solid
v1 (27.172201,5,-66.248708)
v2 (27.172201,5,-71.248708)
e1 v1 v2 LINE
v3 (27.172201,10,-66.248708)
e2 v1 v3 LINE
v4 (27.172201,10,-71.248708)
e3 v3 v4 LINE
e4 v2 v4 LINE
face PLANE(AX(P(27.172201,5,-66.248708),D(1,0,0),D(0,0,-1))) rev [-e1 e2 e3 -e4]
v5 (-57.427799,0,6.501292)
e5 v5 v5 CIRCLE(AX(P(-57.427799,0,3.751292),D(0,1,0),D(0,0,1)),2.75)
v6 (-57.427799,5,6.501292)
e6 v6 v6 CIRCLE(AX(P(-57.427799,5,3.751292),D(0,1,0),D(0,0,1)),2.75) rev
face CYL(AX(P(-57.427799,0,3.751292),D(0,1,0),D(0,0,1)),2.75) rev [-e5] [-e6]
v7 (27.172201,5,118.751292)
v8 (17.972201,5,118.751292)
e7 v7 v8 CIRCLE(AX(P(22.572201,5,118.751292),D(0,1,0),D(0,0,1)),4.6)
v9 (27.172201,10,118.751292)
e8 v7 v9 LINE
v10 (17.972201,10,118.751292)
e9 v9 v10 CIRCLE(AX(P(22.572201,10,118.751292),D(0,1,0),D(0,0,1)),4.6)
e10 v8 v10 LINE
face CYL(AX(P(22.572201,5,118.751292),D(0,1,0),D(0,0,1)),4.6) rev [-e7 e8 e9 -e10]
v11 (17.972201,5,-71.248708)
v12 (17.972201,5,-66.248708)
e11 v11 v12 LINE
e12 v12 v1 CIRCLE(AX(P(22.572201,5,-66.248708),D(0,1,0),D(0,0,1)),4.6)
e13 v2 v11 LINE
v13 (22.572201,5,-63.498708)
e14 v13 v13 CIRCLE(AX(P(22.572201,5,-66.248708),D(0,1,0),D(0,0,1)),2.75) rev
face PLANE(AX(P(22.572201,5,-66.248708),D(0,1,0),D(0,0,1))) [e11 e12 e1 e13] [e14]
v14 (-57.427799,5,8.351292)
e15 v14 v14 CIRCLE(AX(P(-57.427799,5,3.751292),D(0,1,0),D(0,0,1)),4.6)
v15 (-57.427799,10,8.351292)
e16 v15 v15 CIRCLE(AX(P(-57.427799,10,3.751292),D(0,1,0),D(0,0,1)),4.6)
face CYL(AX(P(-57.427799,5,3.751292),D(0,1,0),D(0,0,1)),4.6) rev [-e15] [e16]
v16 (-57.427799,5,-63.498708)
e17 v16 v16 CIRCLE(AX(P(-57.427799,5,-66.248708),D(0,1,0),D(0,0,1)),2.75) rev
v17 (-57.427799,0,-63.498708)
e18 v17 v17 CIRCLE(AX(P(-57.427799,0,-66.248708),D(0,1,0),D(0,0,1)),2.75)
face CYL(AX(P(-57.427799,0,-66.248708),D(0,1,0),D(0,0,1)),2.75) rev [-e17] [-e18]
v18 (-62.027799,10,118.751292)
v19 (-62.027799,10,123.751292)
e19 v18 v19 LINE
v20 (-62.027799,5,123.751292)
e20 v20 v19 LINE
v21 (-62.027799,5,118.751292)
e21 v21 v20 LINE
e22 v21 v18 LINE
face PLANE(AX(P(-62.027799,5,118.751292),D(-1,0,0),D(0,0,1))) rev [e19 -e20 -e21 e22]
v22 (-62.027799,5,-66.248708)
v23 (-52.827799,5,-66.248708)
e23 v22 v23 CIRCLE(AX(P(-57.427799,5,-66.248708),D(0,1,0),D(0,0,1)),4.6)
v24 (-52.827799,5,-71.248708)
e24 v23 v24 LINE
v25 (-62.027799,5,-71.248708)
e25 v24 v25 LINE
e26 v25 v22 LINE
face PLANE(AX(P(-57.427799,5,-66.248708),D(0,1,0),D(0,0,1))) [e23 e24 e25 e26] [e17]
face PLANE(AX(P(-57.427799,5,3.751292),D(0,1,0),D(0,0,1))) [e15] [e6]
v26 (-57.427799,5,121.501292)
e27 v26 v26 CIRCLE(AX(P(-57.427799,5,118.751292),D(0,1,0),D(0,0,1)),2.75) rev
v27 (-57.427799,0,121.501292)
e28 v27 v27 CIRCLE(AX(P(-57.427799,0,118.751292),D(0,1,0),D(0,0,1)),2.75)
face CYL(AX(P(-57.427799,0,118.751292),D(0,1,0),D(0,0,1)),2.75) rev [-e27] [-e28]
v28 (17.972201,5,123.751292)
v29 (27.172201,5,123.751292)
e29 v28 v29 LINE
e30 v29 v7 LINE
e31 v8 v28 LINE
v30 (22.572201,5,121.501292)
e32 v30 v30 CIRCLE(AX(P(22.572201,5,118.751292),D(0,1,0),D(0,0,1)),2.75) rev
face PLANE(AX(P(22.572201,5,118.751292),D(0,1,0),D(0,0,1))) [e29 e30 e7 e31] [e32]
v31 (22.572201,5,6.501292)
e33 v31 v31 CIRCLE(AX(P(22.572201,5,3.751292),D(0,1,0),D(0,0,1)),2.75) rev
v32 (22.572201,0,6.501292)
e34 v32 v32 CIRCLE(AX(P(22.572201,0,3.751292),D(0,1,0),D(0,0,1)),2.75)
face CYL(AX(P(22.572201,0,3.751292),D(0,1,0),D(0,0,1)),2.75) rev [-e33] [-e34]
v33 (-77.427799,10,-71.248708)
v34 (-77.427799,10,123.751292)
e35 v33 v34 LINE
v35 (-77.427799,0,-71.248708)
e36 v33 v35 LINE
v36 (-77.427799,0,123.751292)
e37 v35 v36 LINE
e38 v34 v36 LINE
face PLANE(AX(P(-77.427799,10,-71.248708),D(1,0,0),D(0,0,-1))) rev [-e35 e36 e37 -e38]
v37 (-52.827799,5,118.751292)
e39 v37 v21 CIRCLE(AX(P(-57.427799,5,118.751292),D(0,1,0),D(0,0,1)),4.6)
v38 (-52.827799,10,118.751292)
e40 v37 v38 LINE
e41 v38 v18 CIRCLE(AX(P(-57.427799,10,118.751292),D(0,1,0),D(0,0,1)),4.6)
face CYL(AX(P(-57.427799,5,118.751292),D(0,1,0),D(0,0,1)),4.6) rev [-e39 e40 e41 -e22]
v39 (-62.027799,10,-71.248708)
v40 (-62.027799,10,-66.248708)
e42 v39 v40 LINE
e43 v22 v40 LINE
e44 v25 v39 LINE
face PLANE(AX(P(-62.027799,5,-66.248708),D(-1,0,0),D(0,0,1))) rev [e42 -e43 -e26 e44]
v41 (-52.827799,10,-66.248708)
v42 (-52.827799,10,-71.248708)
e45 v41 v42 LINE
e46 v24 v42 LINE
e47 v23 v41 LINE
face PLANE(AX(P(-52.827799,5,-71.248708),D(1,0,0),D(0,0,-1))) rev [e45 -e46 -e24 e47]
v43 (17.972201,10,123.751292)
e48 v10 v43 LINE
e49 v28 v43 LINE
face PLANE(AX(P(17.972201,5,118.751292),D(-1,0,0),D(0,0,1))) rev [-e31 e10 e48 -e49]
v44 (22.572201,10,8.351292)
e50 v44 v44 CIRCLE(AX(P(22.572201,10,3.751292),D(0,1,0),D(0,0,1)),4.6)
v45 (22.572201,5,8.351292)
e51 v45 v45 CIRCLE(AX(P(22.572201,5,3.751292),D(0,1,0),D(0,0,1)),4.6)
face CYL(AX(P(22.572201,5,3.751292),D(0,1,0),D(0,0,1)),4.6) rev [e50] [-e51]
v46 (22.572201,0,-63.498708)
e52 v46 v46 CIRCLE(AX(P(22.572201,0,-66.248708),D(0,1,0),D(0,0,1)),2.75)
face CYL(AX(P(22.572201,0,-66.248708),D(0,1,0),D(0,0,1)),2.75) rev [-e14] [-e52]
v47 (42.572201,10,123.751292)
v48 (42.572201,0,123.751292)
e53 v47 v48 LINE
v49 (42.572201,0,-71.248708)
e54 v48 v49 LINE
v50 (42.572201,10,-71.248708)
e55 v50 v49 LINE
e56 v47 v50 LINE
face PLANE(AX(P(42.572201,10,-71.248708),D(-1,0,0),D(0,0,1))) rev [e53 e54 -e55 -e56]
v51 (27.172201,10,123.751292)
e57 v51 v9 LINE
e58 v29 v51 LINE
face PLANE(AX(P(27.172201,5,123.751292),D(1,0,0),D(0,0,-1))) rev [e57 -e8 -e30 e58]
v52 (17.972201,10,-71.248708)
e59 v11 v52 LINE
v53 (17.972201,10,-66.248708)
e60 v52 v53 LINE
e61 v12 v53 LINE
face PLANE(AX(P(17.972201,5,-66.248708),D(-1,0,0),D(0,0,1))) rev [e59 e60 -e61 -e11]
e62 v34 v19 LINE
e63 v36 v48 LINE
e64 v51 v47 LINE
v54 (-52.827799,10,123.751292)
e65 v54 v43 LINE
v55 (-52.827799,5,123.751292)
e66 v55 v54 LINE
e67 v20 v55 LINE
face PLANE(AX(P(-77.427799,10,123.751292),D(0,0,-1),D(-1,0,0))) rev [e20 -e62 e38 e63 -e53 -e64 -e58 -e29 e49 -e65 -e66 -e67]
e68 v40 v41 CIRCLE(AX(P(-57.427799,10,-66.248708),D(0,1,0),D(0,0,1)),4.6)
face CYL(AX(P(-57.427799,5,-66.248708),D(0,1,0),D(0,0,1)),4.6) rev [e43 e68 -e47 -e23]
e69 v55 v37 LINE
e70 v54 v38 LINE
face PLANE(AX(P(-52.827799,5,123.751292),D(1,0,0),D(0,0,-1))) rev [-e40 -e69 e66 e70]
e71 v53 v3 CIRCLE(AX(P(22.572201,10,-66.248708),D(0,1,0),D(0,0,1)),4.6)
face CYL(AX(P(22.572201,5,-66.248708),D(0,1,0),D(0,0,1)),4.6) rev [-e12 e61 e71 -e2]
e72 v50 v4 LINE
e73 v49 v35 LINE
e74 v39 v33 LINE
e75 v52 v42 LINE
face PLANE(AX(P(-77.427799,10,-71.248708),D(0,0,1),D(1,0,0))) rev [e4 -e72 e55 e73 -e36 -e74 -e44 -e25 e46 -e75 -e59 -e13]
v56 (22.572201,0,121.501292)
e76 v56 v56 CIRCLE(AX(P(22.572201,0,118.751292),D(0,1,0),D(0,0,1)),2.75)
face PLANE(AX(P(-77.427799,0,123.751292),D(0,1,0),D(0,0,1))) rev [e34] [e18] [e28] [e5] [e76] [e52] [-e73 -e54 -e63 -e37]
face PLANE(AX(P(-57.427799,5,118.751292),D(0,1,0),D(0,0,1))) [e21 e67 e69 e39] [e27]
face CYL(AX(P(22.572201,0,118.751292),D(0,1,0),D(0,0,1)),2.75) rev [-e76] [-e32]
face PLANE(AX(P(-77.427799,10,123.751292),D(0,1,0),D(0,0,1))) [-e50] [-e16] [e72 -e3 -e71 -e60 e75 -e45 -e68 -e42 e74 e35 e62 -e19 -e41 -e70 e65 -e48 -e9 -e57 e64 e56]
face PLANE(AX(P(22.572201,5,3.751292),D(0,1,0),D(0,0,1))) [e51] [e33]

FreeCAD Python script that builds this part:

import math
import FreeCAD as App
import Part
import Sketcher


def add_polygon(sketch, points):
    """Adds a closed chain of lines whose ends are joined by coincident constraints."""
    first, n = sketch.GeometryCount, len(points)
    for a, b in zip(points, points[1:] + points[:1]):
        sketch.addGeometry(Part.LineSegment(App.Vector(*a, 0), App.Vector(*b, 0)), False)
    for i in range(n):
        sketch.addConstraint(Sketcher.Constraint("Coincident", first + i, 2, first + (i + 1) % n, 1))

doc = App.newDocument("Part")
params = doc.addObject("Spreadsheet::Sheet", "Params")
for row, (alias, value) in enumerate([
    ("sketch1_width", "120 mm"),
    ("sketch1_height", "195 mm"),
    ("pad1_length", "10 mm"),
    ("sketch2_diameter", "5.5 mm"),
    ("sketch3_diameter", "9.2 mm"),
    ("sketch3_height", "5 mm"),
    ("pocket2_length", "5 mm"),
], start=1):
    params.set(f"A{row}", alias)
    params.set(f"B{row}", "=" + value)
    params.setAlias(f"B{row}", alias)

body = doc.addObject("PartDesign::Body", "Body")

# Sketch on XZ plane
sketch1 = body.newObject("Sketcher::SketchObject", "Sketch")
sketch1.AttachmentSupport = (doc.getObject("XZ_Plane"), [""])
sketch1.MapMode = "FlatFace"
add_polygon(sketch1, [(-77.427799, -71.248708), (-77.427799, 123.751292), (42.572201, 123.751292), (42.572201, -71.248708)])  # lines 0-3
sketch1.addConstraint([
    Sketcher.Constraint("Vertical", 0),
    Sketcher.Constraint("Horizontal", 1),
    Sketcher.Constraint("Vertical", 2),
    Sketcher.Constraint("Horizontal", 3),
    Sketcher.Constraint("DistanceX", 1, 1, 1, 2, 120.0),
    Sketcher.Constraint("DistanceY", 0, 1, 0, 2, 195.0),
    Sketcher.Constraint("DistanceX", 0, 2, -1, 1, 77.427799),
    Sketcher.Constraint("DistanceY", -1, 1, 0, 2, 123.751292),
])
sketch1.setExpression("Constraints[8]", "Params.sketch1_width")
sketch1.setExpression("Constraints[9]", "Params.sketch1_height")
pad1 = body.newObject("PartDesign::Pad", "Pad")
pad1.Profile = sketch1
pad1.setExpression("Length", "Params.pad1_length")
pad1.Reversed = True

# Sketch on XZ plane
sketch2 = body.newObject("Sketcher::SketchObject", "Sketch001")
sketch2.AttachmentSupport = (doc.getObject("XZ_Plane"), [""])
sketch2.MapMode = "FlatFace"
sketch2.AttachmentOffset = App.Placement(App.Vector(0, 0, -10), App.Rotation())
sketch2.addGeometry([
    Part.Circle(App.Vector(22.572201, 118.751292, 0), App.Vector(0, 0, 1), 2.75),  # 0
    Part.Circle(App.Vector(-57.427799, 118.751292, 0), App.Vector(0, 0, 1), 2.75),  # 1
    Part.Circle(App.Vector(22.572201, 3.751292, 0), App.Vector(0, 0, 1), 2.75),  # 2
    Part.Circle(App.Vector(-57.427799, 3.751292, 0), App.Vector(0, 0, 1), 2.75),  # 3
    Part.Circle(App.Vector(22.572201, -66.248708, 0), App.Vector(0, 0, 1), 2.75),  # 4
    Part.Circle(App.Vector(-57.427799, -66.248708, 0), App.Vector(0, 0, 1), 2.75),  # 5
], False)
sketch2.addConstraint([
    Sketcher.Constraint("Equal", 0, 1),
    Sketcher.Constraint("Equal", 1, 2),
    Sketcher.Constraint("Equal", 2, 3),
    Sketcher.Constraint("Equal", 3, 4),
    Sketcher.Constraint("Equal", 4, 5),
    Sketcher.Constraint("Horizontal", 0, 3, 1, 3),
    Sketcher.Constraint("Horizontal", 2, 3, 3, 3),
    Sketcher.Constraint("Horizontal", 4, 3, 5, 3),
    Sketcher.Constraint("Vertical", 0, 3, 2, 3),
    Sketcher.Constraint("Vertical", 1, 3, 3, 3),
    Sketcher.Constraint("Vertical", 2, 3, 4, 3),
    Sketcher.Constraint("Vertical", 3, 3, 5, 3),
    Sketcher.Constraint("Diameter", 0, 5.5),
    Sketcher.Constraint("DistanceX", 1, 3, 0, 3, 80.0),
    Sketcher.Constraint("DistanceY", 2, 3, 0, 3, 115.0),
    Sketcher.Constraint("DistanceY", 4, 3, 2, 3, 70.0),
    Sketcher.Constraint("DistanceX", -1, 1, 0, 3, 22.572201),
    Sketcher.Constraint("DistanceY", -1, 1, 0, 3, 118.751292),
])
sketch2.setExpression("Constraints[12]", "Params.sketch2_diameter")
pocket1 = body.newObject("PartDesign::Pocket", "Pocket")
pocket1.Profile = sketch2
pocket1.Type = "ThroughAll"
pocket1.Reversed = True

# Sketch on XZ plane
sketch3 = body.newObject("Sketcher::SketchObject", "Sketch002")
sketch3.AttachmentSupport = (doc.getObject("XZ_Plane"), [""])
sketch3.MapMode = "FlatFace"
sketch3.AttachmentOffset = App.Placement(App.Vector(0, 0, -10), App.Rotation())
sketch3.addGeometry([
    Part.Circle(App.Vector(22.572201, 3.751292, 0), App.Vector(0, 0, 1), 4.6),  # 0
    Part.Circle(App.Vector(-57.427799, 3.751292, 0), App.Vector(0, 0, 1), 4.6),  # 1
    Part.LineSegment(App.Vector(-62.027799, -71.248708, 0), App.Vector(-62.027799, -66.248708, 0)),  # 2
    Part.ArcOfCircle(Part.Circle(App.Vector(-57.427799, -66.248708, 0), App.Vector(0, 0, 1), 4.6), math.radians(0), math.radians(180)),  # 3
    Part.LineSegment(App.Vector(-52.827799, -66.248708, 0), App.Vector(-52.827799, -71.248708, 0)),  # 4
    Part.LineSegment(App.Vector(-52.827799, -71.248708, 0), App.Vector(-62.027799, -71.248708, 0)),  # 5
    Part.LineSegment(App.Vector(17.972201, -71.248708, 0), App.Vector(17.972201, -66.248708, 0)),  # 6
    Part.ArcOfCircle(Part.Circle(App.Vector(22.572201, -66.248708, 0), App.Vector(0, 0, 1), 4.6), math.radians(0), math.radians(180)),  # 7
    Part.LineSegment(App.Vector(27.172201, -66.248708, 0), App.Vector(27.172201, -71.248708, 0)),  # 8
    Part.LineSegment(App.Vector(27.172201, -71.248708, 0), App.Vector(17.972201, -71.248708, 0)),  # 9
    Part.LineSegment(App.Vector(-62.027799, 118.751292, 0), App.Vector(-62.027799, 123.751292, 0)),  # 10
    Part.LineSegment(App.Vector(-62.027799, 123.751292, 0), App.Vector(-52.827799, 123.751292, 0)),  # 11
    Part.LineSegment(App.Vector(-52.827799, 123.751292, 0), App.Vector(-52.827799, 118.751292, 0)),  # 12
    Part.ArcOfCircle(Part.Circle(App.Vector(-57.427799, 118.751292, 0), App.Vector(0, 0, 1), 4.6), math.radians(180), math.radians(360)),  # 13
    Part.LineSegment(App.Vector(17.972201, 118.751292, 0), App.Vector(17.972201, 123.751292, 0)),  # 14
    Part.LineSegment(App.Vector(17.972201, 123.751292, 0), App.Vector(27.172201, 123.751292, 0)),  # 15
    Part.LineSegment(App.Vector(27.172201, 123.751292, 0), App.Vector(27.172201, 118.751292, 0)),  # 16
    Part.ArcOfCircle(Part.Circle(App.Vector(22.572201, 118.751292, 0), App.Vector(0, 0, 1), 4.6), math.radians(180), math.radians(360)),  # 17
], False)
sketch3.addConstraint([
    Sketcher.Constraint("Tangent", 2, 2, 3, 2),
    Sketcher.Constraint("Tangent", 3, 1, 4, 1),
    Sketcher.Constraint("Coincident", 4, 2, 5, 1),
    Sketcher.Constraint("Coincident", 5, 2, 2, 1),
    Sketcher.Constraint("Tangent", 6, 2, 7, 2),
    Sketcher.Constraint("Tangent", 7, 1, 8, 1),
    Sketcher.Constraint("Coincident", 8, 2, 9, 1),
    Sketcher.Constraint("Coincident", 9, 2, 6, 1),
    Sketcher.Constraint("Coincident", 10, 2, 11, 1),
    Sketcher.Constraint("Coincident", 11, 2, 12, 1),
    Sketcher.Constraint("Tangent", 12, 2, 13, 2),
    Sketcher.Constraint("Tangent", 13, 1, 10, 1),
    Sketcher.Constraint("Coincident", 14, 2, 15, 1),
    Sketcher.Constraint("Coincident", 15, 2, 16, 1),
    Sketcher.Constraint("Tangent", 16, 2, 17, 2),
    Sketcher.Constraint("Tangent", 17, 1, 14, 1),
    Sketcher.Constraint("Vertical", 2),
    Sketcher.Constraint("Vertical", 4),
    Sketcher.Constraint("Horizontal", 5),
    Sketcher.Constraint("Vertical", 6),
    Sketcher.Constraint("Vertical", 8),
    Sketcher.Constraint("Horizontal", 9),
    Sketcher.Constraint("Vertical", 10),
    Sketcher.Constraint("Horizontal", 11),
    Sketcher.Constraint("Vertical", 12),
    Sketcher.Constraint("Vertical", 14),
    Sketcher.Constraint("Horizontal", 15),
    Sketcher.Constraint("Vertical", 16),
    Sketcher.Constraint("Equal", 0, 1),
    Sketcher.Constraint("Equal", 1, 3),
    Sketcher.Constraint("Equal", 3, 7),
    Sketcher.Constraint("Equal", 7, 13),
    Sketcher.Constraint("Equal", 13, 17),
    Sketcher.Constraint("Horizontal", 0, 3, 1, 3),
    Sketcher.Constraint("Horizontal", 3, 3, 7, 3),
    Sketcher.Constraint("Horizontal", 13, 3, 17, 3),
    Sketcher.Constraint("Horizontal", 5, 2, 8, 2),
    Sketcher.Constraint("Horizontal", 11, 2, 14, 2),
    Sketcher.Constraint("Vertical", 1, 3, 3, 3),
    Sketcher.Constraint("Vertical", 0, 3, 7, 3),
    Sketcher.Constraint("Vertical", 3, 3, 13, 3),
    Sketcher.Constraint("Vertical", 7, 3, 17, 3),
    Sketcher.Constraint("Equal", 8, 10),
    Sketcher.Constraint("Diameter", 0, 9.2),
    Sketcher.Constraint("DistanceY", 2, 1, 2, 2, 5.0),
    Sketcher.Constraint("DistanceX", 1, 3, 0, 3, 80.0),
    Sketcher.Constraint("DistanceY", 3, 3, 1, 3, 70.0),
    Sketcher.Constraint("DistanceY", 1, 3, 13, 3, 115.0),
    Sketcher.Constraint("DistanceX", -1, 1, 0, 3, 22.572201),
    Sketcher.Constraint("DistanceY", -1, 1, 0, 3, 3.751292),
])
sketch3.setExpression("Constraints[43]", "Params.sketch3_diameter")
sketch3.setExpression("Constraints[44]", "Params.sketch3_height")
pocket2 = body.newObject("PartDesign::Pocket", "Pocket001")
pocket2.Profile = sketch3
pocket2.setExpression("Length", "Params.pocket2_length")
pocket2.Reversed = True

doc.recompute()
